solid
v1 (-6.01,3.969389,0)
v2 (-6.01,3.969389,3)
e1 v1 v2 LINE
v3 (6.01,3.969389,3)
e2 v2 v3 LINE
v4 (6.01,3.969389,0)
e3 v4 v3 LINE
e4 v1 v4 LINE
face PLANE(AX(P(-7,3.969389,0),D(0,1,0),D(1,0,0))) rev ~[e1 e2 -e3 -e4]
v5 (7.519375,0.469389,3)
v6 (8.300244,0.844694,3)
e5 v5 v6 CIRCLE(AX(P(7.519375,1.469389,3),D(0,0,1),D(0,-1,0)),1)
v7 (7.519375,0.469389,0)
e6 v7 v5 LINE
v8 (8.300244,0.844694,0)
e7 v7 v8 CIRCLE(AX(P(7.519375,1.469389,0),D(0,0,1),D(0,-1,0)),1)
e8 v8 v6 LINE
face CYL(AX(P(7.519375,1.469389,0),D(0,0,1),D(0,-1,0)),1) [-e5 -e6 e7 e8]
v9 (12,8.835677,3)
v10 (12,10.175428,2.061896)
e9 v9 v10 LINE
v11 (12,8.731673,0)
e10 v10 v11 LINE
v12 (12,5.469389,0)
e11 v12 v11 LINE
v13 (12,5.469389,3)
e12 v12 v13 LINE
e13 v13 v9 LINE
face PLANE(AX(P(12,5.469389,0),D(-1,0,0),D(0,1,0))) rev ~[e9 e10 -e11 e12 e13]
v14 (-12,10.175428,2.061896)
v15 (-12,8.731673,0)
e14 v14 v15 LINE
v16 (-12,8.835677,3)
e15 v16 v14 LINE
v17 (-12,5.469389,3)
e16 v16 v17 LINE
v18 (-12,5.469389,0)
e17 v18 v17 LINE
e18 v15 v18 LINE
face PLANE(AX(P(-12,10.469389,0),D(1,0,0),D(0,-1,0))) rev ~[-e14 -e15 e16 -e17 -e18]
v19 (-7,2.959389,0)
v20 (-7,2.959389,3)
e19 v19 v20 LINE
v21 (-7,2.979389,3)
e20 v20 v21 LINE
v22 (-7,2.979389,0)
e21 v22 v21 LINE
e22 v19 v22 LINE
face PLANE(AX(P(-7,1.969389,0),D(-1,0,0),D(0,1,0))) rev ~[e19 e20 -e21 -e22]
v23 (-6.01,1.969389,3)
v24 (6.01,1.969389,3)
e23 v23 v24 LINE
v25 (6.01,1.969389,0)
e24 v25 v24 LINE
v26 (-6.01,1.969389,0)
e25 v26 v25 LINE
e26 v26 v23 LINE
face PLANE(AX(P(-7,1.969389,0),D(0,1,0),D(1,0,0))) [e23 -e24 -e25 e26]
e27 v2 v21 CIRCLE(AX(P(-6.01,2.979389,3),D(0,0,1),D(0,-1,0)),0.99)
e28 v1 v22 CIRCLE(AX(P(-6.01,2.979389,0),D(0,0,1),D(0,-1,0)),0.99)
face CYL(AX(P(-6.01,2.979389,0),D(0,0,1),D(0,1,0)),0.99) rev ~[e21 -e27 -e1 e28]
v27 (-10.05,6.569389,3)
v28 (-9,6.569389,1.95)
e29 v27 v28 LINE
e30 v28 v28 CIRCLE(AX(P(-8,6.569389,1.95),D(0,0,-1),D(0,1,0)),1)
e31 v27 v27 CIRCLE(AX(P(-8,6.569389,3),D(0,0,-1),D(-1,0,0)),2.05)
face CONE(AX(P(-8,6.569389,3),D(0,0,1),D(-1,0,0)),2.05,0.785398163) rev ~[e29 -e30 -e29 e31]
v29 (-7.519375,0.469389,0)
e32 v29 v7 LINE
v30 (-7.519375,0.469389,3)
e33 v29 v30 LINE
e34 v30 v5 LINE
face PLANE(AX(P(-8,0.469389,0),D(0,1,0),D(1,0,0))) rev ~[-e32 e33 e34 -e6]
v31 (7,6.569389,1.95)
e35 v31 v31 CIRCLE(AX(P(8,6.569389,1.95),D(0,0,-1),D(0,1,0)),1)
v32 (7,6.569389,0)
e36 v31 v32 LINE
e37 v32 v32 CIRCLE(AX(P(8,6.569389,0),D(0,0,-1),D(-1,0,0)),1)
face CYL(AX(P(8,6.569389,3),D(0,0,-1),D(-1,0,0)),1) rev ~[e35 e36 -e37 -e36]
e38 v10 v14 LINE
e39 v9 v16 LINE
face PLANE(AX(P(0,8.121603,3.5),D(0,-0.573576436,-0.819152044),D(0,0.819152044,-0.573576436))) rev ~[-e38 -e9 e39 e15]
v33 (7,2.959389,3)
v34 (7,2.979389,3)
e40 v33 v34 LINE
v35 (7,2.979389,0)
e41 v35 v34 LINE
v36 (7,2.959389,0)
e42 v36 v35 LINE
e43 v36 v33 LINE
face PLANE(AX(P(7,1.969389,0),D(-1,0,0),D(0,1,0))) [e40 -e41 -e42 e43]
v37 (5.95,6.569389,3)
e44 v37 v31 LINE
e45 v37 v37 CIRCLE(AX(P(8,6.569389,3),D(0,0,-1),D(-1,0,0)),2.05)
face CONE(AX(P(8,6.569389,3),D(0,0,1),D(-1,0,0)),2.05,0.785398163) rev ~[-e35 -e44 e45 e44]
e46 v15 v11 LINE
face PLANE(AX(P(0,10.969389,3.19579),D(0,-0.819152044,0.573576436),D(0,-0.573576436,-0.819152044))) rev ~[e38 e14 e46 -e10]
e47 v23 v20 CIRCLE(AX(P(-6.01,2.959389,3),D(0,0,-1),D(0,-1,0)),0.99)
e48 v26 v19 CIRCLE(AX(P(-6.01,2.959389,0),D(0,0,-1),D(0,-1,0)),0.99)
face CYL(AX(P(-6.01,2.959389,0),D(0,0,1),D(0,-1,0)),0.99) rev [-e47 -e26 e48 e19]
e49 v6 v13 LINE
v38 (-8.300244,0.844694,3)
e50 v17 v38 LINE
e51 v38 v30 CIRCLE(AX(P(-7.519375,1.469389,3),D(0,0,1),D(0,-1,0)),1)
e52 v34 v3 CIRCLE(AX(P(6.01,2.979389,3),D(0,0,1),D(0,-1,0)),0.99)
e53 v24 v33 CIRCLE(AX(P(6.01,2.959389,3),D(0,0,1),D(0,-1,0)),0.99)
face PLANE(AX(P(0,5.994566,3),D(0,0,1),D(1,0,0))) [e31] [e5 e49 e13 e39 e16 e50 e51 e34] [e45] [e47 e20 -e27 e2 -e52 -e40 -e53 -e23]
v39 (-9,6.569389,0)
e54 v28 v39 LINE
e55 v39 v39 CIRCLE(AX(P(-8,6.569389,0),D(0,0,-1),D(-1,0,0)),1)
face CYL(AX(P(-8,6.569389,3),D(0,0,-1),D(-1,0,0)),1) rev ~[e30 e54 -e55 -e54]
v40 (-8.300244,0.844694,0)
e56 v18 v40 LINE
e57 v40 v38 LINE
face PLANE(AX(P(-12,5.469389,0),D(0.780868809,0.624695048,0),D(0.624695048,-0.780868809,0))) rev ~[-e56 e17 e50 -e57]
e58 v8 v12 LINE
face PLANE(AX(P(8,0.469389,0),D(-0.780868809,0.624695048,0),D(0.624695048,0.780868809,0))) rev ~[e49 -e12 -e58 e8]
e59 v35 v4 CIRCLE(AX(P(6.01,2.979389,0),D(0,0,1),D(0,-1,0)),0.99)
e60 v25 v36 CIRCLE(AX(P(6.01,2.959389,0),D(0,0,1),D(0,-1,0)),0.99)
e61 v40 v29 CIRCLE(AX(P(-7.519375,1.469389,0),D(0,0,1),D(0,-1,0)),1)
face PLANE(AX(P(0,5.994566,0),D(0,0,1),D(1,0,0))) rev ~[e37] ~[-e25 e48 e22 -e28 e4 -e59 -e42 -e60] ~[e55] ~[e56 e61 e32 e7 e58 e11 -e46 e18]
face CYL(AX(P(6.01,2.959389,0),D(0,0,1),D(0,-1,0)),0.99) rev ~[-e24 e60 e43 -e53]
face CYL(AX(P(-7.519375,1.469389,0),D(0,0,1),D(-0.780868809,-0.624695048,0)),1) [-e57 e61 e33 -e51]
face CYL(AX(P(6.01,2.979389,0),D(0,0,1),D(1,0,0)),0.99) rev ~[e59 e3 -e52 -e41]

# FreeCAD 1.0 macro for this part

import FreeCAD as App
import Part
import Sketcher
Q = App.Units.Quantity


def edges_at(feature, points):
    """Names of the edges that pass closest to the given points."""
    edges = feature.Shape.Edges
    near = lambda p: min(range(len(edges)), key=lambda i: edges[i].distToShape(Part.Vertex(*p))[0])
    return sorted({f"Edge{near(p) + 1}" for p in points})


def add_polygon(sketch, points):
    """Adds a closed chain of lines whose ends are joined by coincident constraints."""
    first, n = sketch.GeometryCount, len(points)
    for a, b in zip(points, points[1:] + points[:1]):
        sketch.addGeometry(Part.LineSegment(App.Vector(*a, 0), App.Vector(*b, 0)), False)
    for i in range(n):
        sketch.addConstraint(Sketcher.Constraint("Coincident", first + i, 2, first + (i + 1) % n, 1))

doc = App.newDocument("Part")
body = doc.addObject("PartDesign::Body", "Body")

# Sketch on XY plane
sketch1 = body.newObject("Sketcher::SketchObject", "Sketch")
sketch1.AttachmentSupport = (doc.getObject("XY_Plane"), [""])
sketch1.MapMode = "FlatFace"
add_polygon(sketch1, [(8, 0.5), (12, 5.5), (12, 10.5), (-12, 10.5), (-12, 5.5), (-8, 0.5)])  # lines 0-5
add_polygon(sketch1, [(7, 2), (-7, 2), (-7, 4), (7, 4)])  # lines 6-9
sketch1.addConstraint([
    Sketcher.Constraint("Vertical", 1),
    Sketcher.Constraint("Horizontal", 2),
    Sketcher.Constraint("Vertical", 3),
    Sketcher.Constraint("Horizontal", 5),
    Sketcher.Constraint("Horizontal", 6),
    Sketcher.Constraint("Vertical", 7),
    Sketcher.Constraint("Horizontal", 8),
    Sketcher.Constraint("Vertical", 9),
    Sketcher.Constraint("Symmetric", 0, 2, 3, 2, -2),
    Sketcher.Constraint("Equal", 0, 4),
    Sketcher.Constraint("DistanceX", 2, 2, 2, 1, Q("24 mm")),
    Sketcher.Constraint("DistanceX", 5, 1, 5, 2, Q("16 mm")),
    Sketcher.Constraint("DistanceX", 6, 2, 6, 1, Q("14 mm")),
    Sketcher.Constraint("DistanceY", 1, 1, 1, 2, Q("5 mm")),
    Sketcher.Constraint("DistanceY", 7, 1, 7, 2, Q("2 mm")),
    Sketcher.Constraint("DistanceX", 6, 2, -1, 1, Q("7 mm")),
    Sketcher.Constraint("DistanceY", 4, 2, 3, 2, Q("5 mm")),
    Sketcher.Constraint("DistanceY", 4, 2, 6, 2, Q("1.5 mm")),
    Sketcher.Constraint("DistanceY", -1, 1, 0, 2, Q("5.469389 mm")),
])
pad1 = body.newObject("PartDesign::Pad", "Pad")
pad1.Profile = sketch1
pad1.Length = 3
doc.recompute()

fillet = body.newObject("PartDesign::Fillet", "Fillet")
fillet.Base = (pad1, edges_at(pad1, [
    (-7, 3.969, 1.5),
    (-7, 1.969, 1.5),
    (7, 3.969, 1.5),
    (7, 1.969, 1.5),
]))
fillet.Radius = 0.99

# Sketch on YZ plane
sketch2 = body.newObject("Sketcher::SketchObject", "Sketch001")
sketch2.AttachmentSupport = (doc.getObject("YZ_Plane"), [""])
sketch2.MapMode = "FlatFace"
add_polygon(sketch2, [(11, -0.8), (11, 3.2), (8.2, -0.8)])  # lines 0-2
sketch2.addConstraint([
    Sketcher.Constraint("Vertical", 0),
    Sketcher.Constraint("Horizontal", 2),
    Sketcher.Constraint("DistanceY", 0, 1, 0, 2, Q("4 mm")),
    Sketcher.Constraint("Angle", 1, Q("-125 deg")),
    Sketcher.Constraint("DistanceX", -1, 1, 0, 2, Q("10.969389 mm")),
    Sketcher.Constraint("DistanceY", -1, 1, 0, 2, Q("3.19579 mm")),
])
pocket1 = body.newObject("PartDesign::Pocket", "Pocket")
pocket1.Profile = sketch2
pocket1.Type = "ThroughAll"
pocket1.Midplane = True
doc.recompute()

fillet2 = body.newObject("PartDesign::Fillet", "Fillet001")
fillet2.Base = (pocket1, edges_at(pocket1, [(8, 0.469, 1.5), (-8, 0.469, 1.5)]))
fillet2.Radius = 1

# Sketch on YZ plane
sketch3 = body.newObject("Sketcher::SketchObject", "Sketch002")
sketch3.AttachmentSupport = (doc.getObject("YZ_Plane"), [""])
sketch3.MapMode = "FlatFace"
add_polygon(sketch3, [(12.1, 3.5), (8.1, 3.5), (12.1, 0.7)])  # lines 0-2
sketch3.addConstraint([
    Sketcher.Constraint("Horizontal", 0),
    Sketcher.Constraint("Vertical", 2),
    Sketcher.Constraint("DistanceX", 0, 2, 0, 1, Q("4 mm")),
    Sketcher.Constraint("Angle", 1, Q("-35 deg")),
    Sketcher.Constraint("DistanceY", -1, 1, 0, 2, Q("3.5 mm")),
    Sketcher.Constraint("DistanceX", -1, 1, 0, 2, Q("8.121603 mm")),
])
pocket2 = body.newObject("PartDesign::Pocket", "Pocket001")
pocket2.Profile = sketch3
pocket2.Type = "ThroughAll"
pocket2.Midplane = True

# Sketch on XY plane
sketch4 = body.newObject("Sketcher::SketchObject", "Sketch003")
sketch4.AttachmentSupport = (doc.getObject("XY_Plane"), [""])
sketch4.MapMode = "FlatFace"
sketch4.AttachmentOffset = App.Placement(App.Vector(0, 0, 3), App.Rotation())
sketch4.addGeometry([
    Part.Circle(App.Vector(-8, 6.6, 0), App.Vector(0, 0, 1), 1),
    Part.Circle(App.Vector(8, 6.6, 0), App.Vector(0, 0, 1), 1),
], False)
sketch4.addConstraint([
    Sketcher.Constraint("Equal", 0, 1),
    Sketcher.Constraint("Symmetric", 0, 3, 1, 3, -2),
    Sketcher.Constraint("Diameter", 0, Q("2 mm")),
    Sketcher.Constraint("DistanceX", 0, 3, -1, 1, Q("8 mm")),
    Sketcher.Constraint("DistanceY", -1, 1, 0, 3, Q("6.569389 mm")),
])
doc.recompute()
hole = body.newObject("PartDesign::Hole", "Hole")
hole.Profile = sketch4
hole.ThreadType = "None"
hole.Diameter = 2
hole.DepthType = "Dimension"
hole.Depth = 4
hole.DrillPoint = "Angled"
hole.DrillPointAngle = 118
hole.HoleCutType = "Countersink"
hole.HoleCutDiameter = 4.1
hole.HoleCutCountersinkAngle = 90

doc.recompute()
